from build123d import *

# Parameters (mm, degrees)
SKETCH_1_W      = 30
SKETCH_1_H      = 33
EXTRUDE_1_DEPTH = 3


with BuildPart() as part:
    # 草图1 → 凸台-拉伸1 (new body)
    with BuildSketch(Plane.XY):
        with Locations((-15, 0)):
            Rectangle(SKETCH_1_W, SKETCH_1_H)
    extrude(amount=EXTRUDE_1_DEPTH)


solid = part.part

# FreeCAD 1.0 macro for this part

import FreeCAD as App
import Part
import Sketcher

V = App.Vector
Q = App.Units.Quantity


def add_polygon(sketch, points):
    """Adds a closed chain of lines whose ends are joined by coincident constraints."""
    first, n = sketch.GeometryCount, len(points)
    for a, b in zip(points, points[1:] + points[:1]):
        sketch.addGeometry(Part.LineSegment(App.Vector(*a, 0), App.Vector(*b, 0)), False)
    for i in range(n):
        sketch.addConstraint(Sketcher.Constraint("Coincident", first + i, 2, first + (i + 1) % n, 1))

doc = App.newDocument("Part")
body = doc.addObject("PartDesign::Body", "Body")

sketch1 = body.newObject("Sketcher::SketchObject", "Sketch")
sketch1.AttachmentSupport = (doc.getObject("XY_Plane"), [""])
sketch1.MapMode = "FlatFace"
add_polygon(sketch1, [(-30, 16.5), (-30, -16.5), (0, -16.5), (0, 16.5)])
sketch1.addConstraint([
    Sketcher.Constraint("Vertical", 0),
    Sketcher.Constraint("Horizontal", 1),
    Sketcher.Constraint("Vertical", 2),
    Sketcher.Constraint("Horizontal", 3),
    Sketcher.Constraint("Symmetric", 1, 2, 2, 2, -1, 1),
    Sketcher.Constraint("DistanceX", 1, 1, 1, 2, Q("30 mm")),
    Sketcher.Constraint("DistanceY", 0, 2, 0, 1, Q("33 mm")),
])
pad1 = body.newObject("PartDesign::Pad", "Pad")
pad1.Profile = sketch1
pad1.Length = 3

doc.recompute()
